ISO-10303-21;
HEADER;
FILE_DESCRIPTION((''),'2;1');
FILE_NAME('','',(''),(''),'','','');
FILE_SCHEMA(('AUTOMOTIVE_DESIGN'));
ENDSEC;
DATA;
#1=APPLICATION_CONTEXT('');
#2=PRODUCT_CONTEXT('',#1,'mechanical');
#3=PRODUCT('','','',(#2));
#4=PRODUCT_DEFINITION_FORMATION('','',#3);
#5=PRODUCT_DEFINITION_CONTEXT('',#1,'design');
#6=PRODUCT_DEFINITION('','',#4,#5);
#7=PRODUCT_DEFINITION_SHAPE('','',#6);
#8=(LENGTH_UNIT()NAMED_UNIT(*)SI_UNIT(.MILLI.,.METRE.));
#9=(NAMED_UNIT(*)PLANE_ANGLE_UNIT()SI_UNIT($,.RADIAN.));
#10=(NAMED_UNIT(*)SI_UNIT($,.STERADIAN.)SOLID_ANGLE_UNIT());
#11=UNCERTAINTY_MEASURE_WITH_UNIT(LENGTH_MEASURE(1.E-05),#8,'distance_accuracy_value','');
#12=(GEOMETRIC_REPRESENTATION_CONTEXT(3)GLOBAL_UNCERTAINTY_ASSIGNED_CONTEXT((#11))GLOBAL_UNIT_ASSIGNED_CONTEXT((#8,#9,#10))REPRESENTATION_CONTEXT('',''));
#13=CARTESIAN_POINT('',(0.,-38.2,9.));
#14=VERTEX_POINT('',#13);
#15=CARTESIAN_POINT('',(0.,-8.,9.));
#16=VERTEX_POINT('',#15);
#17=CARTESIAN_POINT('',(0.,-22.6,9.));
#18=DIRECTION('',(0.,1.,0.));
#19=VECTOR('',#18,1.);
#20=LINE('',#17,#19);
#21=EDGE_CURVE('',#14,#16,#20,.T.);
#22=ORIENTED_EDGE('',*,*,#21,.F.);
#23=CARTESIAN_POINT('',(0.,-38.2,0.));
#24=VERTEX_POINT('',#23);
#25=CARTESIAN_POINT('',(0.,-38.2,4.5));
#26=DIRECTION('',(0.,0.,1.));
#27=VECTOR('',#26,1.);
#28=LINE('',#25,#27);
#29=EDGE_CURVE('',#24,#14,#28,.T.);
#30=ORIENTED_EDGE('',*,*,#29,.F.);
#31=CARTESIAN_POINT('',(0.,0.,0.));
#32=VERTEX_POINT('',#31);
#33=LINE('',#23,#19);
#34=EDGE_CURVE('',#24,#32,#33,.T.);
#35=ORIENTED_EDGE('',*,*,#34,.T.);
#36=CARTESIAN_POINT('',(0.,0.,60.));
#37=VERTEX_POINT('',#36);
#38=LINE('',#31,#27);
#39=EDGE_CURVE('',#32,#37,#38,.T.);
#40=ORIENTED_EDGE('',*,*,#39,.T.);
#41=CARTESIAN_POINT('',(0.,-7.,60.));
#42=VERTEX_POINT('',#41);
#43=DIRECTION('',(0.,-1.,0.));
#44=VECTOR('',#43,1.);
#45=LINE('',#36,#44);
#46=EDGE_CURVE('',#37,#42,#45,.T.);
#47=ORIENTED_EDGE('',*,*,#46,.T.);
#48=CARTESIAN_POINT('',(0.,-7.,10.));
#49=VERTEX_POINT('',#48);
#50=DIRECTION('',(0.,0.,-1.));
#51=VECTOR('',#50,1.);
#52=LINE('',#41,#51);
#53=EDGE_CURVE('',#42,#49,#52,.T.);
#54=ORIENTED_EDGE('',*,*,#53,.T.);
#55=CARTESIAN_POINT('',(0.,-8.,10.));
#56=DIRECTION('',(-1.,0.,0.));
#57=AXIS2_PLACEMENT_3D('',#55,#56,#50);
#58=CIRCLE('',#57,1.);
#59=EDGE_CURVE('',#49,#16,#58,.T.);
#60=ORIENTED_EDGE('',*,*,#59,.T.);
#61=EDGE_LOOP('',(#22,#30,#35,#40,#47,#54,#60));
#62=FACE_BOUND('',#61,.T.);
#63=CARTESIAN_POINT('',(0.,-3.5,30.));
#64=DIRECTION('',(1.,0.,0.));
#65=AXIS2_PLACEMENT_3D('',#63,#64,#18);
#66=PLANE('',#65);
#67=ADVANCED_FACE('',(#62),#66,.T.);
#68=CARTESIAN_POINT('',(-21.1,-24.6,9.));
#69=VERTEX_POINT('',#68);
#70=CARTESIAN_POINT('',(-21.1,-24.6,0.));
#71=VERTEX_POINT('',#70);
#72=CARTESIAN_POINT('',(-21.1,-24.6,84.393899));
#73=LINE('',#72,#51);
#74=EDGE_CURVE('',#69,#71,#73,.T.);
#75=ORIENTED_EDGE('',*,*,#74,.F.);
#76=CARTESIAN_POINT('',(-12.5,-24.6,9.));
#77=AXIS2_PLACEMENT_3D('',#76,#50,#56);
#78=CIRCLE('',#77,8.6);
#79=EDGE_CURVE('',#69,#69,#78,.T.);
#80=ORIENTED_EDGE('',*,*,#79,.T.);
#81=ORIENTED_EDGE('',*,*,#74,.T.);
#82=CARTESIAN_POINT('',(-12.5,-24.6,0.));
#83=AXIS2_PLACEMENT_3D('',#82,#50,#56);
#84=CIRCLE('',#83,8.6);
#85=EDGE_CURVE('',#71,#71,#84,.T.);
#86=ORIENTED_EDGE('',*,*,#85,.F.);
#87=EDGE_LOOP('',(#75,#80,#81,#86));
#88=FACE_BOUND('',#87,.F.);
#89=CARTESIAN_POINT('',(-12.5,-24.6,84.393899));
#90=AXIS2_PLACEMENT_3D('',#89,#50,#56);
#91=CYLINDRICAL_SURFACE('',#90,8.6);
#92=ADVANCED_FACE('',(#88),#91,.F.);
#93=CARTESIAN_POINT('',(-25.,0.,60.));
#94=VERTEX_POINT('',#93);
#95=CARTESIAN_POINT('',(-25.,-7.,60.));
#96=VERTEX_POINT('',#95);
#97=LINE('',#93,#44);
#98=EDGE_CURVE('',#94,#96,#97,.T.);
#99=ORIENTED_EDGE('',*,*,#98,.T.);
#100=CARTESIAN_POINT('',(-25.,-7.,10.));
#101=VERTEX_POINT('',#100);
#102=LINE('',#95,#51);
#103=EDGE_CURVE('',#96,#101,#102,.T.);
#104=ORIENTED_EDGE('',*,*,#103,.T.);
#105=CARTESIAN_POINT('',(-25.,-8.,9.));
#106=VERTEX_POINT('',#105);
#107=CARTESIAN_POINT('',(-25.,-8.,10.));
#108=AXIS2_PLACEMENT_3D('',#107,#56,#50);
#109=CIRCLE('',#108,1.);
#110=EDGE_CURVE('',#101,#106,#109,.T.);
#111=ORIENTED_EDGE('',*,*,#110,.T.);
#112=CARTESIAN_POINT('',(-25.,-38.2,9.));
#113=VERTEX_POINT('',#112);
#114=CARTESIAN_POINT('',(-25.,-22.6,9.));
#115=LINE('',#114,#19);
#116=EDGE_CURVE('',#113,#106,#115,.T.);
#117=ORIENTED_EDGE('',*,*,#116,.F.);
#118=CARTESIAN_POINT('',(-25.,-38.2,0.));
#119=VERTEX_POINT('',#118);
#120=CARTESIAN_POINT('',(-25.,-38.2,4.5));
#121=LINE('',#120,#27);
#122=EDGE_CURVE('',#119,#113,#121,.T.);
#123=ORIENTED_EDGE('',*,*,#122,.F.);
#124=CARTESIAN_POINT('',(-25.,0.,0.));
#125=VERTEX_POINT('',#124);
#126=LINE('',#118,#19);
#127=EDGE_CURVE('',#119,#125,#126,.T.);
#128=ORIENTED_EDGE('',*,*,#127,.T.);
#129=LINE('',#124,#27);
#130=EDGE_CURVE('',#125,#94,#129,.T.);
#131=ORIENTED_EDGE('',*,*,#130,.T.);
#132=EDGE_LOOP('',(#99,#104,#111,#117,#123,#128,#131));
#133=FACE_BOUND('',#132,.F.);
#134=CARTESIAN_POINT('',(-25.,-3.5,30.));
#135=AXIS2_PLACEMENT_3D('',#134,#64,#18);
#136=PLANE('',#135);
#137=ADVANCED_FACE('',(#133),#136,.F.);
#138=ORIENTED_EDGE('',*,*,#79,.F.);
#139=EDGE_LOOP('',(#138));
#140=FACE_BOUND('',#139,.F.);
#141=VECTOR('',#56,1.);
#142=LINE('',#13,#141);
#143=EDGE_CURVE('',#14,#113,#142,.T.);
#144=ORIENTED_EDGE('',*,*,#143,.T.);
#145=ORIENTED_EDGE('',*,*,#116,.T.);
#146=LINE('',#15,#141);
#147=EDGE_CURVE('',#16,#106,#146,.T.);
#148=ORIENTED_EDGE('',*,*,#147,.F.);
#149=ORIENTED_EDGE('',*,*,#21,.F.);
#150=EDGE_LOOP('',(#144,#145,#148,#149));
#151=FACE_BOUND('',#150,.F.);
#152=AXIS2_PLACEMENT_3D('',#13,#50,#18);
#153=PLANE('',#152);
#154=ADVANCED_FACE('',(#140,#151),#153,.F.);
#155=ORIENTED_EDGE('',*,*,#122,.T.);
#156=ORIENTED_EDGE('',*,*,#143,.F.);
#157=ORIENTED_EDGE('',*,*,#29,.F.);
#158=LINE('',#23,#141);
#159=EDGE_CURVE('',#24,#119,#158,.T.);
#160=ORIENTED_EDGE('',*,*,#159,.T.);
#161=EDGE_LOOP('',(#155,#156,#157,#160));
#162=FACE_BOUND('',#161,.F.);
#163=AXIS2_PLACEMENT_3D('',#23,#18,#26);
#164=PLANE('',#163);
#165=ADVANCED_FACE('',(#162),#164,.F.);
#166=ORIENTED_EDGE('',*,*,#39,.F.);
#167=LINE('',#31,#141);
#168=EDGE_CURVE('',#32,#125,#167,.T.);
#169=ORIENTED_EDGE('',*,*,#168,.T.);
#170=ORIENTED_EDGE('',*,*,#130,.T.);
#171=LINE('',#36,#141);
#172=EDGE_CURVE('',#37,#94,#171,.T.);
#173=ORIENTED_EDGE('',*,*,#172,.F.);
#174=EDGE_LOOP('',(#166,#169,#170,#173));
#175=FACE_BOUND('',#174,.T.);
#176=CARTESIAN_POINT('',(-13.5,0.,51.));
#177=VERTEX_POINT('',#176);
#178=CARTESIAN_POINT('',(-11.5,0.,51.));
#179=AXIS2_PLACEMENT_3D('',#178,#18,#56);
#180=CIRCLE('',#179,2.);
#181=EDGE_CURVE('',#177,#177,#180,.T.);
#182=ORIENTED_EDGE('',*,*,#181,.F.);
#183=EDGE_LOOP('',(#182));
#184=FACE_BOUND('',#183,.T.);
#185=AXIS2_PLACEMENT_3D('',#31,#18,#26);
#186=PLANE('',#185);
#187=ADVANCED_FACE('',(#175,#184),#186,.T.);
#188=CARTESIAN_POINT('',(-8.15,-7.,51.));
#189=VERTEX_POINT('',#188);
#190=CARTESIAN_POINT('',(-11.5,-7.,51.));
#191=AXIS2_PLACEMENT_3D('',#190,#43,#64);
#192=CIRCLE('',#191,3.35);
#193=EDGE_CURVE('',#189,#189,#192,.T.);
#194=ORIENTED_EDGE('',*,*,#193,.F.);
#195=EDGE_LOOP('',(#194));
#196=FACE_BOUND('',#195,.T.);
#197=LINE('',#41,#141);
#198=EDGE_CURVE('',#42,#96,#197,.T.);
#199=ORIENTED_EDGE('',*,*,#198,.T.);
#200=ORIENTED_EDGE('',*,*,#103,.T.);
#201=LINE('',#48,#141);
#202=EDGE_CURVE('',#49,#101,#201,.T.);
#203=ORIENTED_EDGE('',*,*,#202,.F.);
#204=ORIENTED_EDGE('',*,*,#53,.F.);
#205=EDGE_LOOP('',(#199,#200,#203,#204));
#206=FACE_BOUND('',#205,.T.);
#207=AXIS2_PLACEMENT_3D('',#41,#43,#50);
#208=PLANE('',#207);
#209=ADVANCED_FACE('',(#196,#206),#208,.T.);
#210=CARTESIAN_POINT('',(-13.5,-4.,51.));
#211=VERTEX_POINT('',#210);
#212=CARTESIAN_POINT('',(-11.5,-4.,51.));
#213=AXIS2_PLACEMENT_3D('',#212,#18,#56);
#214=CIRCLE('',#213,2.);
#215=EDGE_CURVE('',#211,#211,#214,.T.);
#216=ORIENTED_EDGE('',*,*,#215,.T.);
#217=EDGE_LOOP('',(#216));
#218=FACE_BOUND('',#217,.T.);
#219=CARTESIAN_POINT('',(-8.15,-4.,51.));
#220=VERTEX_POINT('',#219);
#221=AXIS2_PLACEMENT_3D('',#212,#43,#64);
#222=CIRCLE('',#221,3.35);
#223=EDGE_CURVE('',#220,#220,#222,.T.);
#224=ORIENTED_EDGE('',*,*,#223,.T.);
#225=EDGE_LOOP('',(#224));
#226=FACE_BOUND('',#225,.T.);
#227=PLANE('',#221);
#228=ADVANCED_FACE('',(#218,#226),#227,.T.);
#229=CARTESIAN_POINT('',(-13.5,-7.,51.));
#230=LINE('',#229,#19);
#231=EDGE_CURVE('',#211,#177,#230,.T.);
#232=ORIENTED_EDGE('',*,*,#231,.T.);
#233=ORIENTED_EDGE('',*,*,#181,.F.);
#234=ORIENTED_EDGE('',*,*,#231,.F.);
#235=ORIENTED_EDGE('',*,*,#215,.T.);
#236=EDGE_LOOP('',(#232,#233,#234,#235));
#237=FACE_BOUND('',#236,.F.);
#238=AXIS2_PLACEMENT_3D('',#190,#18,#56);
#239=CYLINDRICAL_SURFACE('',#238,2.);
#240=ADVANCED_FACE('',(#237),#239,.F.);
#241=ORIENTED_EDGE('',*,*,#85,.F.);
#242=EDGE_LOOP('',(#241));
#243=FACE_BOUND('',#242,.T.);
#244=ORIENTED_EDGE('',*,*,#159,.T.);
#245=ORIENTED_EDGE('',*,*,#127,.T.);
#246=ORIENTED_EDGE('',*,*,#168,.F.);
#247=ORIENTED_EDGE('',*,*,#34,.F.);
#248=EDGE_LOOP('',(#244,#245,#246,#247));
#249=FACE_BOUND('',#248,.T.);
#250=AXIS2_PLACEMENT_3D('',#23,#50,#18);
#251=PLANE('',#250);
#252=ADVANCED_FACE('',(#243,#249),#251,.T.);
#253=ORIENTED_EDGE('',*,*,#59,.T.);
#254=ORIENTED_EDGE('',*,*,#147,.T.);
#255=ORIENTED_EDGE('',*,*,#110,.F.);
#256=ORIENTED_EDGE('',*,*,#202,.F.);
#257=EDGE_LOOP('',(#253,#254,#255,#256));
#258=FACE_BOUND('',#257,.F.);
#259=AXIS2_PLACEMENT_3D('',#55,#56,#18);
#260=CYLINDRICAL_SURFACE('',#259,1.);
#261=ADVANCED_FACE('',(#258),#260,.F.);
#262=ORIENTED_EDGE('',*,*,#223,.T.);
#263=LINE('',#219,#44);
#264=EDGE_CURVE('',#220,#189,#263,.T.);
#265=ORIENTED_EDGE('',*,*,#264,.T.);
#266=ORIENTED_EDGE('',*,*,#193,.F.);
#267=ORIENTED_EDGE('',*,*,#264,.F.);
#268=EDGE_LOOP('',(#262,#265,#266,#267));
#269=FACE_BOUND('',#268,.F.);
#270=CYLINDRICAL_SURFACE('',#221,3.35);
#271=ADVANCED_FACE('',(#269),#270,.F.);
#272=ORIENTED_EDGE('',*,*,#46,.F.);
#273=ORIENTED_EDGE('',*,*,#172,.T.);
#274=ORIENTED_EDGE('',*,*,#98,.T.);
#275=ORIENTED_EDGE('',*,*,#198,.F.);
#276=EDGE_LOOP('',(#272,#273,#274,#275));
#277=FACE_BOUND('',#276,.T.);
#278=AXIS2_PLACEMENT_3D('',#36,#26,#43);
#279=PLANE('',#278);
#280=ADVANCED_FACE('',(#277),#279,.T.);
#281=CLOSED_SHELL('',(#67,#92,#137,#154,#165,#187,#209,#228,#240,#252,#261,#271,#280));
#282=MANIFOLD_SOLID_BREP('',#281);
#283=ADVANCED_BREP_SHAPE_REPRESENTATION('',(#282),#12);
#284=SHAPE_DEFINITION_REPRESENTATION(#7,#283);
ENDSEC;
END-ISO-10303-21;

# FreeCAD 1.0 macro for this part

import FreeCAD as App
import Part
import Sketcher
Q = App.Units.Quantity


def edges_at(feature, points):
    """Names of the edges that pass closest to the given points."""
    edges = feature.Shape.Edges
    near = lambda p: min(range(len(edges)), key=lambda i: edges[i].distToShape(Part.Vertex(*p))[0])
    return sorted({f"Edge{near(p) + 1}" for p in points})

doc = App.newDocument("Part")
body = doc.addObject("PartDesign::Body", "Body")

# Sketch on YZ plane
sketch1 = doc.addObject("Sketcher::SketchObject", "Sketch")
body.addObject(sketch1)
sketch1.AttachmentSupport = (doc.YZ_Plane, [""])
sketch1.MapMode = "FlatFace"
sketch1.addGeometry(Part.LineSegment(App.Vector(0, 0, 0), App.Vector(0, 60, 0)), False)
sketch1.addGeometry(Part.LineSegment(App.Vector(0, 60, 0), App.Vector(-7, 60, 0)), False)
sketch1.addGeometry(Part.LineSegment(App.Vector(-7, 60, 0), App.Vector(-7, 9, 0)), False)
sketch1.addGeometry(Part.LineSegment(App.Vector(-7, 9, 0), App.Vector(-38, 9, 0)), False)
sketch1.addGeometry(Part.LineSegment(App.Vector(-38, 9, 0), App.Vector(-38, 0, 0)), False)
sketch1.addGeometry(Part.LineSegment(App.Vector(-38, 0, 0), App.Vector(0, 0, 0)), False)
sketch1.addConstraint(Sketcher.Constraint("Coincident", 0, 2, 1, 1))
sketch1.addConstraint(Sketcher.Constraint("Coincident", 1, 2, 2, 1))
sketch1.addConstraint(Sketcher.Constraint("Coincident", 2, 2, 3, 1))
sketch1.addConstraint(Sketcher.Constraint("Coincident", 3, 2, 4, 1))
sketch1.addConstraint(Sketcher.Constraint("Coincident", 4, 2, 5, 1))
sketch1.addConstraint(Sketcher.Constraint("Coincident", 5, 2, 0, 1))
sketch1.addConstraint(Sketcher.Constraint("Vertical", 0))
sketch1.addConstraint(Sketcher.Constraint("Horizontal", 1))
sketch1.addConstraint(Sketcher.Constraint("Vertical", 2))
sketch1.addConstraint(Sketcher.Constraint("Horizontal", 3))
sketch1.addConstraint(Sketcher.Constraint("Vertical", 4))
sketch1.addConstraint(Sketcher.Constraint("Horizontal", 5))
sketch1.addConstraint(Sketcher.Constraint("Coincident", 5, 2, -1, 1))
sketch1.addConstraint(Sketcher.Constraint("DistanceX", 1, 2, 1, 1, Q("7 mm")))
sketch1.addConstraint(Sketcher.Constraint("DistanceY", 0, 1, 0, 2, Q("60 mm")))
sketch1.addConstraint(Sketcher.Constraint("DistanceY", 2, 2, 2, 1, Q("51 mm")))
sketch1.addConstraint(Sketcher.Constraint("DistanceX", 3, 2, 3, 1, Q("31.2 mm")))
pad1 = doc.addObject("PartDesign::Pad", "Pad")
body.addObject(pad1)
pad1.Profile = sketch1
pad1.Length = 25
pad1.Reversed = True

# Sketch on XY plane
sketch2 = doc.addObject("Sketcher::SketchObject", "Sketch001")
body.addObject(sketch2)
sketch2.AttachmentSupport = (doc.XY_Plane, [""])
sketch2.MapMode = "FlatFace"
sketch2.AttachmentOffset = App.Placement(App.Vector(0, 0, 9), App.Rotation())
sketch2.addGeometry(Part.Circle(App.Vector(-12, -25, 0), App.Vector(0, 0, 1), 9), False)
sketch2.addConstraint(Sketcher.Constraint("Diameter", 0, Q("17.2 mm")))
sketch2.addConstraint(Sketcher.Constraint("DistanceX", 0, 3, -1, 1, Q("12.5 mm")))
sketch2.addConstraint(Sketcher.Constraint("DistanceY", 0, 3, -1, 1, Q("24.6 mm")))
doc.recompute()
hole = doc.addObject("PartDesign::Hole", "Hole")
body.addObject(hole)
hole.Profile = sketch2
hole.ThreadType = "None"
hole.Diameter = 17.2
hole.DepthType = "ThroughAll"

# Sketch on XZ plane
sketch3 = doc.addObject("Sketcher::SketchObject", "Sketch002")
body.addObject(sketch3)
sketch3.AttachmentSupport = (doc.XZ_Plane, [""])
sketch3.MapMode = "FlatFace"
sketch3.AttachmentOffset = App.Placement(App.Vector(0, 0, 7), App.Rotation())
sketch3.addGeometry(Part.Circle(App.Vector(-11.5, 51, 0), App.Vector(0, 0, 1), 2), False)
sketch3.addConstraint(Sketcher.Constraint("Diameter", 0, Q("4 mm")))
sketch3.addConstraint(Sketcher.Constraint("DistanceY", -1, 1, 0, 3, Q("51 mm")))
sketch3.addConstraint(Sketcher.Constraint("DistanceX", 0, 3, -1, 1, Q("11.5 mm")))
doc.recompute()
hole2 = doc.addObject("PartDesign::Hole", "Hole001")
body.addObject(hole2)
hole2.Profile = sketch3
hole2.ThreadType = "None"
hole2.Diameter = 4
hole2.DepthType = "ThroughAll"
hole2.HoleCutType = "Counterbore"
hole2.HoleCutDiameter = 6.7
hole2.HoleCutDepth = 3
doc.recompute()

fillet = doc.addObject("PartDesign::Fillet", "Fillet")
body.addObject(fillet)
fillet.Base = (hole2, edges_at(hole2, [(-12.5, -7, 9)]))
fillet.Radius = 1

doc.recompute()
